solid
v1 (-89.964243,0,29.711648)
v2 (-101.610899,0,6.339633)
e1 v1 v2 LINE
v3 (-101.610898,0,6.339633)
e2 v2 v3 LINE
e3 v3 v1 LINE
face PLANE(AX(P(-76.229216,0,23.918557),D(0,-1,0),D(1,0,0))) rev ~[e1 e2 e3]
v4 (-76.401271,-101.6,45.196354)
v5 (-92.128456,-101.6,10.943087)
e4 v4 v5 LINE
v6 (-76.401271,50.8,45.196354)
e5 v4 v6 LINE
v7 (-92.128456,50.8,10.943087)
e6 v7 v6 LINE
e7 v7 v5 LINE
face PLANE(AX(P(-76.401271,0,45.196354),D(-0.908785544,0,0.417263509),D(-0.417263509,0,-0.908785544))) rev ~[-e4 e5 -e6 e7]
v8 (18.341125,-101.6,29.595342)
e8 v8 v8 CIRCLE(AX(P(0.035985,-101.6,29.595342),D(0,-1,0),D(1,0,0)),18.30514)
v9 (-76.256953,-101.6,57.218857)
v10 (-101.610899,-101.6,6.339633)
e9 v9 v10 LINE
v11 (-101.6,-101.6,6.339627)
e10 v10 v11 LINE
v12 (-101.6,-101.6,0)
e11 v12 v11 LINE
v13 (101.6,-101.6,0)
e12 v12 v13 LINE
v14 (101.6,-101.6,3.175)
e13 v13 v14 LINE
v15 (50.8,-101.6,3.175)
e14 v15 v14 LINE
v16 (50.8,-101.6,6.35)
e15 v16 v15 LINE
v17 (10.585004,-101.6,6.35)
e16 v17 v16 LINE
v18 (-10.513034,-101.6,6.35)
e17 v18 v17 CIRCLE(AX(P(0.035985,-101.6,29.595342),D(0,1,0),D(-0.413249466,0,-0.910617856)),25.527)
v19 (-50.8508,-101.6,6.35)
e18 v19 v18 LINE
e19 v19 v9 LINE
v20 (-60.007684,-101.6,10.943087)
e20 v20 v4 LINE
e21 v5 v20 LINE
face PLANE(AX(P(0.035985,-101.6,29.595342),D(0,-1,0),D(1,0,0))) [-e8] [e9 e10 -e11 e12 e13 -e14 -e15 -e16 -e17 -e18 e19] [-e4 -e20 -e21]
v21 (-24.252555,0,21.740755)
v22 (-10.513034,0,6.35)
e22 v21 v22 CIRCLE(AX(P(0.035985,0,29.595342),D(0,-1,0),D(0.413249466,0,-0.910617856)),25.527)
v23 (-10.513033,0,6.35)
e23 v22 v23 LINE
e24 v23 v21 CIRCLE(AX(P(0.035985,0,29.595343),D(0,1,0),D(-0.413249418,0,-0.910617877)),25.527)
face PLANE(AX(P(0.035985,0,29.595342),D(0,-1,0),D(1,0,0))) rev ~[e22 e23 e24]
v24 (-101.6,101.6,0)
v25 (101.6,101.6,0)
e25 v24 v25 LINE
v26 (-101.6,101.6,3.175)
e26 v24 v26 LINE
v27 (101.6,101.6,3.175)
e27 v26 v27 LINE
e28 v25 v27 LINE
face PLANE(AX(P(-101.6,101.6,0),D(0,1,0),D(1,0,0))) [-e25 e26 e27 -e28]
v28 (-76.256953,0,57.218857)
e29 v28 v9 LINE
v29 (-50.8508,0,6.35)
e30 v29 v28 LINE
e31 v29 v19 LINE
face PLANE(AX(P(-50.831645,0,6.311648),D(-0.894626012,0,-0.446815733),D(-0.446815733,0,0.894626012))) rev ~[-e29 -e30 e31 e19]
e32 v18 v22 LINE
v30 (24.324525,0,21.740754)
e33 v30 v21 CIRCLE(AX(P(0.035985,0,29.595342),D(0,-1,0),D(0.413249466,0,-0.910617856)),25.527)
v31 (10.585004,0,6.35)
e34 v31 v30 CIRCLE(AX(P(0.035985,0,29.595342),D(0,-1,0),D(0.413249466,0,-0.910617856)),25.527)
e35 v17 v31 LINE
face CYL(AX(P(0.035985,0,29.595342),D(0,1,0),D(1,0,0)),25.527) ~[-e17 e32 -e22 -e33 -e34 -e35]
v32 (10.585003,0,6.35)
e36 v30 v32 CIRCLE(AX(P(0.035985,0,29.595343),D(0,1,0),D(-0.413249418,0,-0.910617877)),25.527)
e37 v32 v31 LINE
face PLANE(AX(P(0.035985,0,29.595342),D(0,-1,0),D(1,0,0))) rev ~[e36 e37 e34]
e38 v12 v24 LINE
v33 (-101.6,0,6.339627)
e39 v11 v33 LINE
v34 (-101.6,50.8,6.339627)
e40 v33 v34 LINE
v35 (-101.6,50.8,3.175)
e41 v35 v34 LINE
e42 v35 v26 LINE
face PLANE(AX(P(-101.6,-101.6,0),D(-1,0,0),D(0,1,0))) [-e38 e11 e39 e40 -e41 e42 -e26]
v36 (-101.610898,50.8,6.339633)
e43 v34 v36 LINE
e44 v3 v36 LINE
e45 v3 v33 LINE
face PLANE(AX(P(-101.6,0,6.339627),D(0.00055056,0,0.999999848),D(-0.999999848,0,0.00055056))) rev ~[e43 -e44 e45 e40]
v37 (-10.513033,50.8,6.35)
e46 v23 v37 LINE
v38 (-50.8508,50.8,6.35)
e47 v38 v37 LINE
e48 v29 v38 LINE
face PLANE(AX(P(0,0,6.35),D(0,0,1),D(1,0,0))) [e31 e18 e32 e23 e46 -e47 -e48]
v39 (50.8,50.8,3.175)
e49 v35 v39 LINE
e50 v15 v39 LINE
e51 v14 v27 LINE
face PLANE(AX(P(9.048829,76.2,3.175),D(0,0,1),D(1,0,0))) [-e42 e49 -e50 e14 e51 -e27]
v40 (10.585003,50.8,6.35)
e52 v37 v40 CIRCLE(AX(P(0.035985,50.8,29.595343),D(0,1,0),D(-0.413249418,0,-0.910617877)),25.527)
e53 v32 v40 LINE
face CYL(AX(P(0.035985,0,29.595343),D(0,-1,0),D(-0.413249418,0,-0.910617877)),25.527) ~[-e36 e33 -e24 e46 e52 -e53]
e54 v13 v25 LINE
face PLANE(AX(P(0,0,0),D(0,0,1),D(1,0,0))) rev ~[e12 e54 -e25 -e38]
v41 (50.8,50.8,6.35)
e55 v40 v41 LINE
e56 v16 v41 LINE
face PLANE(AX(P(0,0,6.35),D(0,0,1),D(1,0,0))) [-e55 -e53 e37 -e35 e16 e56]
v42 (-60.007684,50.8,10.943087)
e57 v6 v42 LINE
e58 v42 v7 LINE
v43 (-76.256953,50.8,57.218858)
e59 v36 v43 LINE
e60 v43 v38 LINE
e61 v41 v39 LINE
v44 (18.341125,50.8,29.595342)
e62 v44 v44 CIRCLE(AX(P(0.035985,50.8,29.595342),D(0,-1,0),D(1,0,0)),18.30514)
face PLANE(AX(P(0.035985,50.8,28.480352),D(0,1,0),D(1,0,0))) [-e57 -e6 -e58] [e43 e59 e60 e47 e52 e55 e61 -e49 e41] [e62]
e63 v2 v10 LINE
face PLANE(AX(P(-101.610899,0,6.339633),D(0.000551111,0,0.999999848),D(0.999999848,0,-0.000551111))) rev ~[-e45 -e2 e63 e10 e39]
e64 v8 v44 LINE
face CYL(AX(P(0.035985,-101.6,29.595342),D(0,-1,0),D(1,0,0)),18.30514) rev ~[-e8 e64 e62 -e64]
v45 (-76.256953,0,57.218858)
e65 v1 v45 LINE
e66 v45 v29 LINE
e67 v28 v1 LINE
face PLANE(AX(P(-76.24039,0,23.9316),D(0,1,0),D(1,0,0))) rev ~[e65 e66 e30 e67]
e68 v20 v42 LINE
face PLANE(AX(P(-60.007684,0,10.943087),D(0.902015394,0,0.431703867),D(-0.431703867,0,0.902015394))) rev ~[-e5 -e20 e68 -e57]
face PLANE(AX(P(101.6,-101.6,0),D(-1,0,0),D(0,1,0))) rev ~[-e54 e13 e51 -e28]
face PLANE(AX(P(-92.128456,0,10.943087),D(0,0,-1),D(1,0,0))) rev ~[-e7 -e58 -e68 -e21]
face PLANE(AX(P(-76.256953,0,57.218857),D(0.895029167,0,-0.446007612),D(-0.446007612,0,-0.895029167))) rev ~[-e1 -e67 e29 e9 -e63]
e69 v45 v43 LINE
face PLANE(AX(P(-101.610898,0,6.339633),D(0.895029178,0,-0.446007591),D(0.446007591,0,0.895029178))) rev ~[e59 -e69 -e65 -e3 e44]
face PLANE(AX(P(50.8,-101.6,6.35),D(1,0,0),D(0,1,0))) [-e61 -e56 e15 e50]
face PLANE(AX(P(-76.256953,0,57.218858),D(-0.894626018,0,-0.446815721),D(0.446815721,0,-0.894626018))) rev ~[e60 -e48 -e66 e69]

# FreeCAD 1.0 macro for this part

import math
import FreeCAD as App
import Part
import Sketcher

V = App.Vector
Q = App.Units.Quantity


def add_polygon(sketch, points):
    """Adds a closed chain of lines whose ends are joined by coincident constraints."""
    first, n = sketch.GeometryCount, len(points)
    for a, b in zip(points, points[1:] + points[:1]):
        sketch.addGeometry(Part.LineSegment(App.Vector(*a, 0), App.Vector(*b, 0)), False)
    for i in range(n):
        sketch.addConstraint(Sketcher.Constraint("Coincident", first + i, 2, first + (i + 1) % n, 1))

doc = App.newDocument("Part")
body = doc.addObject("PartDesign::Body", "Body")

sketch1 = doc.addObject("Sketcher::SketchObject", "Sketch")
body.addObject(sketch1)
sketch1.AttachmentSupport = (doc.XY_Plane, [""])
sketch1.MapMode = "FlatFace"
add_polygon(sketch1, [(-101.6, 101.6), (-101.6, -101.6), (101.6, -101.6), (101.6, 101.6)])
sketch1.addConstraint([
    Sketcher.Constraint("Vertical", 0),
    Sketcher.Constraint("Horizontal", 1),
    Sketcher.Constraint("Vertical", 2),
    Sketcher.Constraint("Horizontal", 3),
    Sketcher.Constraint("Symmetric", 0, 2, 2, 2, -1, 1),
    Sketcher.Constraint("Equal", 3, 0),
    Sketcher.Constraint("DistanceX", 1, 1, 1, 2, Q("8 in")),
])
pad1 = doc.addObject("PartDesign::Pad", "Pad")
body.addObject(pad1)
pad1.Profile = sketch1
pad1.Length = Q("0.25 in")

sketch2 = doc.addObject("Sketcher::SketchObject", "Sketch001")
body.addObject(sketch2)
sketch2.AttachmentSupport = (doc.XY_Plane, [""])
sketch2.MapMode = "FlatFace"
sketch2.AttachmentOffset = App.Placement(V(0, 0, 0.25 * 25.4), App.Rotation())
add_polygon(sketch2, [(-105.251171, 101.6), (-105.251171, 50.8), (123.348829, 50.8), (123.348829, 101.6)])
sketch2.addConstraint([
    Sketcher.Constraint("Vertical", 0),
    Sketcher.Constraint("Horizontal", 1),
    Sketcher.Constraint("Vertical", 2),
    Sketcher.Constraint("Horizontal", 3),
    Sketcher.Constraint("DistanceX", 1, 1, 1, 2, Q("9 in")),
    Sketcher.Constraint("DistanceY", 0, 2, 0, 1, Q("2 in")),
    Sketcher.Constraint("DistanceY", -1, 1, 0, 2, Q("2 in")),
    Sketcher.Constraint("DistanceX", 0, 2, -1, 1, 105.251171),
])
pocket1 = doc.addObject("PartDesign::Pocket", "Pocket")
body.addObject(pocket1)
pocket1.Profile = sketch2
pocket1.Length = Q("0.125 in")

sketch3 = doc.addObject("Sketcher::SketchObject", "Sketch002")
body.addObject(sketch3)
sketch3.AttachmentSupport = (doc.XY_Plane, [""])
sketch3.MapMode = "FlatFace"
sketch3.AttachmentOffset = App.Placement(V(0, 0, 0.25 * 25.4), App.Rotation())
add_polygon(sketch3, [(50.8, 50.8), (50.8, -101.6), (101.6, -101.6), (101.6, 50.8)])
sketch3.addConstraint([
    Sketcher.Constraint("Vertical", 0),
    Sketcher.Constraint("Horizontal", 1),
    Sketcher.Constraint("Vertical", 2),
    Sketcher.Constraint("Horizontal", 3),
    Sketcher.Constraint("DistanceX", 1, 1, 1, 2, Q("2 in")),
    Sketcher.Constraint("DistanceY", 0, 2, 0, 1, Q("6 in")),
    Sketcher.Constraint("DistanceX", -1, 1, 0, 2, Q("2 in")),
    Sketcher.Constraint("DistanceY", 0, 2, -1, 1, Q("4 in")),
])
pocket2 = doc.addObject("PartDesign::Pocket", "Pocket001")
body.addObject(pocket2)
pocket2.Profile = sketch3
pocket2.Length = Q("0.125 in")

sketch4 = doc.addObject("Sketcher::SketchObject", "Sketch003")
body.addObject(sketch4)
sketch4.AttachmentSupport = (doc.XZ_Plane, [""])
sketch4.MapMode = "FlatFace"
add_polygon(sketch4, [(-76.256953, 57.218857), (-101.610899, 6.339633), (-50.831645, 6.311648)])
sketch4.addConstraint([
    Sketcher.Constraint("DistanceX", 0, 2, -1, 1, 101.610899),
    Sketcher.Constraint("Distance", 1, 50.779262),
    Sketcher.Constraint("Distance", 2, 56.903341),
    Sketcher.Constraint("DistanceY", 1, 2, 2, 2, 50.907209),
    Sketcher.Constraint("Distance", 0, 56.846442),
    Sketcher.Constraint("DistanceY", -1, 1, 0, 2, 6.339633),
])
pad2 = doc.addObject("PartDesign::Pad", "Pad001")
body.addObject(pad2)
pad2.Profile = sketch4
pad2.Length = Q("4 in")

sketch5 = doc.addObject("Sketcher::SketchObject", "Sketch004")
body.addObject(sketch5)
sketch5.AttachmentSupport = (doc.XZ_Plane, [""])
sketch5.MapMode = "FlatFace"
add_polygon(sketch5, [(-50.8508, 6.35), (-101.6, 6.35), (-101.6, 6.339627), (-101.610898, 6.339633), (-76.256953, 57.218858)])
sketch5.addConstraint([
    Sketcher.Constraint("Horizontal", 0),
    Sketcher.Constraint("Vertical", 1),
    Sketcher.Constraint("DistanceX", 0, 2, -1, 1, Q("4 in")),
    Sketcher.Constraint("DistanceX", 0, 2, 0, 1, Q("1.998 in")),
    Sketcher.Constraint("DistanceY", -1, 1, 0, 2, Q("0.25 in")),
    Sketcher.Constraint("Distance", 2, 0.010898),
    Sketcher.Constraint("DistanceY", 1, 2, 1, 1, 0.010373),
    Sketcher.Constraint("DistanceY", 1, 2, 3, 2, 50.879231),
    Sketcher.Constraint("Distance", 3, 56.846443),
    Sketcher.Constraint("Distance", 4, 56.860472),
])
pad3 = doc.addObject("PartDesign::Pad", "Pad002")
body.addObject(pad3)
pad3.Profile = sketch5
pad3.Length = Q("2 in")
pad3.Reversed = True

sketch6 = doc.addObject("Sketcher::SketchObject", "Sketch005")
body.addObject(sketch6)
sketch6.AttachmentSupport = (doc.XZ_Plane, [""])
sketch6.MapMode = "FlatFace"
add_polygon(sketch6, [(-76.401271, 45.196354), (-92.128456, 10.943087), (-60.007684, 10.943087)])
sketch6.addConstraint([
    Sketcher.Constraint("Horizontal", 1),
    Sketcher.Constraint("Distance", 2, 37.974149),
    Sketcher.Constraint("DistanceX", 1, 1, 1, 2, 32.120772),
    Sketcher.Constraint("DistanceX", 2, 2, -1, 1, 76.401271),
    Sketcher.Constraint("Distance", 0, 37.691254),
    Sketcher.Constraint("DistanceY", -1, 1, 0, 2, 10.943087),
])
pocket3 = doc.addObject("PartDesign::Pocket", "Pocket002")
body.addObject(pocket3)
pocket3.Profile = sketch6
pocket3.Length = Q("8 in")
pocket3.Midplane = True

sketch7 = doc.addObject("Sketcher::SketchObject", "Sketch006")
body.addObject(sketch7)
sketch7.AttachmentSupport = (doc.XZ_Plane, [""])
sketch7.MapMode = "FlatFace"
sketch7.addGeometry(Part.Circle(V(0.035985, 29.595342, 0), V(0, 0, 1), 25.527), False)
sketch7.addConstraint([
    Sketcher.Constraint("Diameter", 0, Q("2.01 in")),
    Sketcher.Constraint("DistanceY", -1, 1, 0, 3, 29.595342),
    Sketcher.Constraint("DistanceX", -1, 1, 0, 3, 0.035985),
])
pad4 = doc.addObject("PartDesign::Pad", "Pad003")
body.addObject(pad4)
pad4.Profile = sketch7
pad4.Length = Q("4 in")

sketch8 = doc.addObject("Sketcher::SketchObject", "Sketch007")
body.addObject(sketch8)
sketch8.AttachmentSupport = (doc.XZ_Plane, [""])
sketch8.MapMode = "FlatFace"
sketch8.addGeometry([
    Part.ArcOfCircle(Part.Circle(V(0.035985, 29.595343, 0), V(0, 0, 1), 25.527), math.radians(-65.590878), math.radians(245.590878)),
    Part.LineSegment(V(10.585003, 6.35, 0), V(-10.513033, 6.35, 0)),
], False)
sketch8.addConstraint([
    Sketcher.Constraint("Coincident", 0, 1, 1, 1),
    Sketcher.Constraint("Coincident", 1, 2, 0, 2),
    Sketcher.Constraint("Horizontal", 1),
    Sketcher.Constraint("Radius", 0, Q("1.005 in")),
    Sketcher.Constraint("DistanceY", -1, 1, 0, 1, Q("0.25 in")),
    Sketcher.Constraint("DistanceX", 1, 2, 1, 1, 21.098036),
    Sketcher.Constraint("DistanceX", -1, 1, 0, 3, 0.035985),
])
pad5 = doc.addObject("PartDesign::Pad", "Pad004")
body.addObject(pad5)
pad5.Profile = sketch8
pad5.Length = Q("2 in")
pad5.Reversed = True

sketch9 = doc.addObject("Sketcher::SketchObject", "Sketch008")
body.addObject(sketch9)
sketch9.AttachmentSupport = (doc.XZ_Plane, [""])
sketch9.MapMode = "FlatFace"
sketch9.AttachmentOffset = App.Placement(V(0, 0, 4 * 25.4), App.Rotation())
sketch9.addGeometry(Part.Circle(V(0.035985, 29.595342, 0), V(0, 0, 1), 18.30514), False)
sketch9.addConstraint([
    Sketcher.Constraint("Diameter", 0, 36.61028),
    Sketcher.Constraint("DistanceY", -1, 1, 0, 3, 29.595342),
    Sketcher.Constraint("DistanceX", -1, 1, 0, 3, 0.035985),
])
pocket4 = doc.addObject("PartDesign::Pocket", "Pocket003")
body.addObject(pocket4)
pocket4.Profile = sketch9
pocket4.Length = Q("8 in")

doc.recompute()
